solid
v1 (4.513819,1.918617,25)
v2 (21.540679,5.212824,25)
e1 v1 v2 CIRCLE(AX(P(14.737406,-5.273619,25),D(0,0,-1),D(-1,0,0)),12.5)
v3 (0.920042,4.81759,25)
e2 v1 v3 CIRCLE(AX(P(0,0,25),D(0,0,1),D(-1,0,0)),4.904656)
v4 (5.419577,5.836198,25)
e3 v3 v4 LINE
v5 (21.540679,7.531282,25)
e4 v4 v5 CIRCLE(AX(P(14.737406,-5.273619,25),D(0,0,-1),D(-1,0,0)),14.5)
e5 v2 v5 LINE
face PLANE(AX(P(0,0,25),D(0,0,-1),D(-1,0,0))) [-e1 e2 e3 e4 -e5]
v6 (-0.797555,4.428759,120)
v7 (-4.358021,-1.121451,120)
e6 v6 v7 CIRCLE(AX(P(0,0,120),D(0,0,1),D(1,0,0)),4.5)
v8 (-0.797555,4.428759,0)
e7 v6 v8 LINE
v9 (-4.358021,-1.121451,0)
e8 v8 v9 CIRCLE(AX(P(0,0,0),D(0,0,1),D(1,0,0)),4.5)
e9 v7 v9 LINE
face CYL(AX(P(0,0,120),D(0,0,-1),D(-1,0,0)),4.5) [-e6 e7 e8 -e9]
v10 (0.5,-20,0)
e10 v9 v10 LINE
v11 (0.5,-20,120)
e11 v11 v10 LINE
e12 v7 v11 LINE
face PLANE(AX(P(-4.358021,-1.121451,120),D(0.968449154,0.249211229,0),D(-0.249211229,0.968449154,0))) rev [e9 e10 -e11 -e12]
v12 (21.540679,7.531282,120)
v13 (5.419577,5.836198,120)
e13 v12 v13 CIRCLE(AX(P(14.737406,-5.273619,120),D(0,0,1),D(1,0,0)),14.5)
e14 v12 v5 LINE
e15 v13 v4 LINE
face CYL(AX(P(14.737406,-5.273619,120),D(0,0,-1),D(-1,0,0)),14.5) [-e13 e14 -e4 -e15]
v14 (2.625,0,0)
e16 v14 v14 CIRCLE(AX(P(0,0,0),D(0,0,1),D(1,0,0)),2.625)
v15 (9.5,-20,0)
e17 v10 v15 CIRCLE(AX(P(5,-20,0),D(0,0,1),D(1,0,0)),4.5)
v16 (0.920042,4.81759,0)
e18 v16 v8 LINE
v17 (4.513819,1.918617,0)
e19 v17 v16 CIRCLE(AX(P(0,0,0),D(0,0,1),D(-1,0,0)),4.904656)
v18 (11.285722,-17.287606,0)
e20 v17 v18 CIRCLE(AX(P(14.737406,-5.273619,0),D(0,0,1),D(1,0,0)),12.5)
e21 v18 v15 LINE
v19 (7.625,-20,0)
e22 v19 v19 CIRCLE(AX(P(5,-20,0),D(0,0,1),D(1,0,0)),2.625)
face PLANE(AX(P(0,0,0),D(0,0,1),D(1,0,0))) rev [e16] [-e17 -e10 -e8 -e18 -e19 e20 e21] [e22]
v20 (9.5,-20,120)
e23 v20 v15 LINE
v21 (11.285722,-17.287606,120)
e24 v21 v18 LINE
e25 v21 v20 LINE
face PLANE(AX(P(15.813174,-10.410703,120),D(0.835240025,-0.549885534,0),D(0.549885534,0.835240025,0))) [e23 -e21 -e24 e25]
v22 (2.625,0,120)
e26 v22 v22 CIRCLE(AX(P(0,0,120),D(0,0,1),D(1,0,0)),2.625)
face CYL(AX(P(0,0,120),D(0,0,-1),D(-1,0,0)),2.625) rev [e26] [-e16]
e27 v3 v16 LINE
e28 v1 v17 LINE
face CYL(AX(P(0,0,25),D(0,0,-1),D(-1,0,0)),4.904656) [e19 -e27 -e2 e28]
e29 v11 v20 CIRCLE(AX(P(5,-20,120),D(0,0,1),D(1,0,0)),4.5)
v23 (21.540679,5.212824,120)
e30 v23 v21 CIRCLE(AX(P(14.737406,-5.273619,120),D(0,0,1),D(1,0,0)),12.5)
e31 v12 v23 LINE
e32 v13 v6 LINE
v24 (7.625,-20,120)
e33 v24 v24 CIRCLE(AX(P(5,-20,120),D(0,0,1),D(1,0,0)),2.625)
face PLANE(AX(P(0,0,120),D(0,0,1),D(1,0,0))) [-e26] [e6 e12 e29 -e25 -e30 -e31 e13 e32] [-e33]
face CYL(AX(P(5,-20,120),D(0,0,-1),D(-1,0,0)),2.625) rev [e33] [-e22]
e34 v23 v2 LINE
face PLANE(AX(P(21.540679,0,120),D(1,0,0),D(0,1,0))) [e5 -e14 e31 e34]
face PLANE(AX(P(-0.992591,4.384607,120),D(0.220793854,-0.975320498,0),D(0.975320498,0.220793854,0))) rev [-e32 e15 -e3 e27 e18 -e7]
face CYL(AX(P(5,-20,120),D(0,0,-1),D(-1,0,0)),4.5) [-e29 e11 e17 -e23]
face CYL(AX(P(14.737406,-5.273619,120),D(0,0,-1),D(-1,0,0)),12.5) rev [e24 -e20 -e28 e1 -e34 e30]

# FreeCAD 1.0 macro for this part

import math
import FreeCAD as App
import Part
import Sketcher
Q = App.Units.Quantity

doc = App.newDocument("Part")
body = doc.addObject("PartDesign::Body", "Body")

sketch1 = doc.addObject("Sketcher::SketchObject", "Sketch")
body.addObject(sketch1)
sketch1.AttachmentSupport = (doc.XY_Plane, [""])
sketch1.MapMode = "FlatFace"
sketch1.addGeometry([
    Part.ArcOfCircle(Part.Circle(App.Vector(0, 0, 0), App.Vector(0, 0, 1), 4.5), math.radians(100), math.radians(194)),
    Part.LineSegment(App.Vector(-4.4, -1.1, 0), App.Vector(0.5, -20, 0)),
    Part.ArcOfCircle(Part.Circle(App.Vector(5, -20, 0), App.Vector(0, 0, 1), 4.5), math.radians(180), math.radians(360)),
    Part.LineSegment(App.Vector(9.5, -20, 0), App.Vector(11.3, -17.3, 0)),
    Part.ArcOfCircle(Part.Circle(App.Vector(14.7, -5.3, 0), App.Vector(0, 0, 1), 12.5), math.radians(-109.33), math.radians(-106.03)),
    Part.ArcOfCircle(Part.Circle(App.Vector(14.7, -5.3, 0), App.Vector(0, 0, 1), 12.5), math.radians(110), math.radians(251)),
    Part.ArcOfCircle(Part.Circle(App.Vector(14.7, -5.3, 0), App.Vector(0, 0, 1), 12.5), math.radians(57), math.radians(110)),
    Part.LineSegment(App.Vector(21.5, 5.2, 0), App.Vector(21.5, 7.5, 0)),
    Part.ArcOfCircle(Part.Circle(App.Vector(14.7, -5.3, 0), App.Vector(0, 0, 1), 14.5), math.radians(62), math.radians(130)),
    Part.LineSegment(App.Vector(5.4, 5.8, 0), App.Vector(-0.8, 4.4, 0)),
    Part.Circle(App.Vector(5, -20, 0), App.Vector(0, 0, 1), 2.6),
    Part.Circle(App.Vector(0, 0, 0), App.Vector(0, 0, 1), 2.6),
], False)
sketch1.addConstraint([
    Sketcher.Constraint("Tangent", 0, 2, 1, 1),
    Sketcher.Constraint("Coincident", 1, 2, 2, 1),
    Sketcher.Constraint("Coincident", 2, 2, 3, 1),
    Sketcher.Constraint("Coincident", 3, 2, 4, 2),
    Sketcher.Constraint("Tangent", 4, 1, 5, 2),
    Sketcher.Constraint("Tangent", 5, 1, 6, 2),
    Sketcher.Constraint("Coincident", 6, 1, 7, 1),
    Sketcher.Constraint("Coincident", 7, 2, 8, 1),
    Sketcher.Constraint("Coincident", 8, 2, 9, 1),
    Sketcher.Constraint("Coincident", 9, 2, 0, 1),
    Sketcher.Constraint("Vertical", 7),
    Sketcher.Constraint("Coincident", 0, 3, -1, 1),
    Sketcher.Constraint("Coincident", 11, 3, -1, 1),
    Sketcher.Constraint("Coincident", 6, 3, 4, 3),
    Sketcher.Constraint("Coincident", 8, 3, 4, 3),
    Sketcher.Constraint("Coincident", 10, 3, 2, 3),
    Sketcher.Constraint("Equal", 0, 2),
    Sketcher.Constraint("Equal", 10, 11),
    Sketcher.Constraint("Horizontal", 10, 3, 1, 2),
    Sketcher.Constraint("Horizontal", 1, 2, 2, 2),
    Sketcher.Constraint("Radius", 0, Q("4.5 mm")),
    Sketcher.Constraint("Radius", 4, Q("12.5 mm")),
    Sketcher.Constraint("Radius", 8, Q("14.5 mm")),
    Sketcher.Constraint("Diameter", 10, Q("5.25 mm")),
    Sketcher.Constraint("DistanceX", -1, 1, 2, 3, Q("5 mm")),
    Sketcher.Constraint("DistanceY", 2, 3, -1, 1, Q("20 mm")),
    Sketcher.Constraint("DistanceY", -1, 1, 8, 2, Q("5.836198 mm")),
    Sketcher.Constraint("DistanceY", 5, 3, 5, 1, Q("11.714698 mm")),
    Sketcher.Constraint("DistanceY", 5, 3, 7, 2, Q("12.804901 mm")),
    Sketcher.Constraint("Distance", 9, Q("6.37445 mm")),
    Sketcher.Constraint("DistanceY", 4, 3, -1, 1, Q("5.27362 mm")),
    Sketcher.Constraint("DistanceX", -1, 1, 3, 2, Q("11.285722 mm")),
    Sketcher.Constraint("DistanceY", 4, 1, -1, 1, Q("17.068761 mm")),
    Sketcher.Constraint("DistanceX", -1, 1, 5, 1, Q("10.37669 mm")),
])
pad1 = doc.addObject("PartDesign::Pad", "Pad")
body.addObject(pad1)
pad1.Profile = sketch1
pad1.Length = 120

sketch2 = doc.addObject("Sketcher::SketchObject", "Sketch001")
body.addObject(sketch2)
sketch2.AttachmentSupport = (doc.XY_Plane, [""])
sketch2.MapMode = "FlatFace"
sketch2.addGeometry([
    Part.LineSegment(App.Vector(0.8, 4.8, 0), App.Vector(23.5, 15.3, 0)),
    Part.LineSegment(App.Vector(23.5, 15.3, 0), App.Vector(23.5, 4.1, 0)),
    Part.LineSegment(App.Vector(23.5, 4.1, 0), App.Vector(4.5, 1.9, 0)),
    Part.ArcOfCircle(Part.Circle(App.Vector(0, 0, 0), App.Vector(0, 0, 1), 4.9), math.radians(23), math.radians(81)),
], False)
sketch2.addConstraint([
    Sketcher.Constraint("Coincident", 0, 2, 1, 1),
    Sketcher.Constraint("Coincident", 1, 2, 2, 1),
    Sketcher.Constraint("Coincident", 2, 2, 3, 1),
    Sketcher.Constraint("Coincident", 3, 2, 0, 1),
    Sketcher.Constraint("Vertical", 1),
    Sketcher.Constraint("Coincident", 3, 3, -1, 1),
    Sketcher.Constraint("Radius", 3, Q("4.904656 mm")),
    Sketcher.Constraint("DistanceY", 2, 2, 0, 2, Q("13.414801 mm")),
    Sketcher.Constraint("DistanceY", 1, 2, 1, 1, Q("11.192768 mm")),
    Sketcher.Constraint("DistanceY", -1, 1, 1, 2, Q("4.14065 mm")),
    Sketcher.Constraint("DistanceX", -1, 1, 3, 2, Q("0.802649 mm")),
    Sketcher.Constraint("Distance", 0, Q("25.044516 mm")),
])
pocket1 = doc.addObject("PartDesign::Pocket", "Pocket")
body.addObject(pocket1)
pocket1.Profile = sketch2
pocket1.Length = 25
pocket1.Reversed = True

doc.recompute()
